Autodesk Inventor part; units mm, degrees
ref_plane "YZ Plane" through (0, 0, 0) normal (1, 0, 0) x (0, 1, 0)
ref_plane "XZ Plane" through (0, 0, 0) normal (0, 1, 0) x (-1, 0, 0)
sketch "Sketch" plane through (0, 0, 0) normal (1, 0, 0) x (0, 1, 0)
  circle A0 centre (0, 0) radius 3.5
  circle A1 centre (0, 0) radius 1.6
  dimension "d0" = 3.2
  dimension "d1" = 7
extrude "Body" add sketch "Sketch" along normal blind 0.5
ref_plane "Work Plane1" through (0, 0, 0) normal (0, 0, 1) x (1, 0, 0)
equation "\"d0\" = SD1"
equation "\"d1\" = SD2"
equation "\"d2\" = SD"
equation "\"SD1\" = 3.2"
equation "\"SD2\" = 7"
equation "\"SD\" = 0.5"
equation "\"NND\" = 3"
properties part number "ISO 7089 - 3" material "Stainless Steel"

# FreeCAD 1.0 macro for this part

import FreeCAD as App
import Part
import Sketcher
Q = App.Units.Quantity

doc = App.newDocument("Part")
body = doc.addObject("PartDesign::Body", "Body")

sketch1 = body.newObject("Sketcher::SketchObject", "Sketch")
sketch1.AttachmentSupport = (doc.getObject("YZ_Plane"), [""])
sketch1.MapMode = "FlatFace"
sketch1.addGeometry(Part.Circle(App.Vector(0, 0, 0), App.Vector(0, 0, 1), 3.5), False)
sketch1.addGeometry(Part.Circle(App.Vector(0, 0, 0), App.Vector(0, 0, 1), 1.6), False)
sketch1.addConstraint(Sketcher.Constraint("Coincident", 0, 3, -1, 1))
sketch1.addConstraint(Sketcher.Constraint("Coincident", 1, 3, -1, 1))
sketch1.addConstraint(Sketcher.Constraint("Diameter", 0, Q("7 mm")))
sketch1.addConstraint(Sketcher.Constraint("Diameter", 1, Q("3.2 mm")))
pad1 = body.newObject("PartDesign::Pad", "Pad")
pad1.Profile = sketch1
pad1.Length = 0.5

doc.recompute()
